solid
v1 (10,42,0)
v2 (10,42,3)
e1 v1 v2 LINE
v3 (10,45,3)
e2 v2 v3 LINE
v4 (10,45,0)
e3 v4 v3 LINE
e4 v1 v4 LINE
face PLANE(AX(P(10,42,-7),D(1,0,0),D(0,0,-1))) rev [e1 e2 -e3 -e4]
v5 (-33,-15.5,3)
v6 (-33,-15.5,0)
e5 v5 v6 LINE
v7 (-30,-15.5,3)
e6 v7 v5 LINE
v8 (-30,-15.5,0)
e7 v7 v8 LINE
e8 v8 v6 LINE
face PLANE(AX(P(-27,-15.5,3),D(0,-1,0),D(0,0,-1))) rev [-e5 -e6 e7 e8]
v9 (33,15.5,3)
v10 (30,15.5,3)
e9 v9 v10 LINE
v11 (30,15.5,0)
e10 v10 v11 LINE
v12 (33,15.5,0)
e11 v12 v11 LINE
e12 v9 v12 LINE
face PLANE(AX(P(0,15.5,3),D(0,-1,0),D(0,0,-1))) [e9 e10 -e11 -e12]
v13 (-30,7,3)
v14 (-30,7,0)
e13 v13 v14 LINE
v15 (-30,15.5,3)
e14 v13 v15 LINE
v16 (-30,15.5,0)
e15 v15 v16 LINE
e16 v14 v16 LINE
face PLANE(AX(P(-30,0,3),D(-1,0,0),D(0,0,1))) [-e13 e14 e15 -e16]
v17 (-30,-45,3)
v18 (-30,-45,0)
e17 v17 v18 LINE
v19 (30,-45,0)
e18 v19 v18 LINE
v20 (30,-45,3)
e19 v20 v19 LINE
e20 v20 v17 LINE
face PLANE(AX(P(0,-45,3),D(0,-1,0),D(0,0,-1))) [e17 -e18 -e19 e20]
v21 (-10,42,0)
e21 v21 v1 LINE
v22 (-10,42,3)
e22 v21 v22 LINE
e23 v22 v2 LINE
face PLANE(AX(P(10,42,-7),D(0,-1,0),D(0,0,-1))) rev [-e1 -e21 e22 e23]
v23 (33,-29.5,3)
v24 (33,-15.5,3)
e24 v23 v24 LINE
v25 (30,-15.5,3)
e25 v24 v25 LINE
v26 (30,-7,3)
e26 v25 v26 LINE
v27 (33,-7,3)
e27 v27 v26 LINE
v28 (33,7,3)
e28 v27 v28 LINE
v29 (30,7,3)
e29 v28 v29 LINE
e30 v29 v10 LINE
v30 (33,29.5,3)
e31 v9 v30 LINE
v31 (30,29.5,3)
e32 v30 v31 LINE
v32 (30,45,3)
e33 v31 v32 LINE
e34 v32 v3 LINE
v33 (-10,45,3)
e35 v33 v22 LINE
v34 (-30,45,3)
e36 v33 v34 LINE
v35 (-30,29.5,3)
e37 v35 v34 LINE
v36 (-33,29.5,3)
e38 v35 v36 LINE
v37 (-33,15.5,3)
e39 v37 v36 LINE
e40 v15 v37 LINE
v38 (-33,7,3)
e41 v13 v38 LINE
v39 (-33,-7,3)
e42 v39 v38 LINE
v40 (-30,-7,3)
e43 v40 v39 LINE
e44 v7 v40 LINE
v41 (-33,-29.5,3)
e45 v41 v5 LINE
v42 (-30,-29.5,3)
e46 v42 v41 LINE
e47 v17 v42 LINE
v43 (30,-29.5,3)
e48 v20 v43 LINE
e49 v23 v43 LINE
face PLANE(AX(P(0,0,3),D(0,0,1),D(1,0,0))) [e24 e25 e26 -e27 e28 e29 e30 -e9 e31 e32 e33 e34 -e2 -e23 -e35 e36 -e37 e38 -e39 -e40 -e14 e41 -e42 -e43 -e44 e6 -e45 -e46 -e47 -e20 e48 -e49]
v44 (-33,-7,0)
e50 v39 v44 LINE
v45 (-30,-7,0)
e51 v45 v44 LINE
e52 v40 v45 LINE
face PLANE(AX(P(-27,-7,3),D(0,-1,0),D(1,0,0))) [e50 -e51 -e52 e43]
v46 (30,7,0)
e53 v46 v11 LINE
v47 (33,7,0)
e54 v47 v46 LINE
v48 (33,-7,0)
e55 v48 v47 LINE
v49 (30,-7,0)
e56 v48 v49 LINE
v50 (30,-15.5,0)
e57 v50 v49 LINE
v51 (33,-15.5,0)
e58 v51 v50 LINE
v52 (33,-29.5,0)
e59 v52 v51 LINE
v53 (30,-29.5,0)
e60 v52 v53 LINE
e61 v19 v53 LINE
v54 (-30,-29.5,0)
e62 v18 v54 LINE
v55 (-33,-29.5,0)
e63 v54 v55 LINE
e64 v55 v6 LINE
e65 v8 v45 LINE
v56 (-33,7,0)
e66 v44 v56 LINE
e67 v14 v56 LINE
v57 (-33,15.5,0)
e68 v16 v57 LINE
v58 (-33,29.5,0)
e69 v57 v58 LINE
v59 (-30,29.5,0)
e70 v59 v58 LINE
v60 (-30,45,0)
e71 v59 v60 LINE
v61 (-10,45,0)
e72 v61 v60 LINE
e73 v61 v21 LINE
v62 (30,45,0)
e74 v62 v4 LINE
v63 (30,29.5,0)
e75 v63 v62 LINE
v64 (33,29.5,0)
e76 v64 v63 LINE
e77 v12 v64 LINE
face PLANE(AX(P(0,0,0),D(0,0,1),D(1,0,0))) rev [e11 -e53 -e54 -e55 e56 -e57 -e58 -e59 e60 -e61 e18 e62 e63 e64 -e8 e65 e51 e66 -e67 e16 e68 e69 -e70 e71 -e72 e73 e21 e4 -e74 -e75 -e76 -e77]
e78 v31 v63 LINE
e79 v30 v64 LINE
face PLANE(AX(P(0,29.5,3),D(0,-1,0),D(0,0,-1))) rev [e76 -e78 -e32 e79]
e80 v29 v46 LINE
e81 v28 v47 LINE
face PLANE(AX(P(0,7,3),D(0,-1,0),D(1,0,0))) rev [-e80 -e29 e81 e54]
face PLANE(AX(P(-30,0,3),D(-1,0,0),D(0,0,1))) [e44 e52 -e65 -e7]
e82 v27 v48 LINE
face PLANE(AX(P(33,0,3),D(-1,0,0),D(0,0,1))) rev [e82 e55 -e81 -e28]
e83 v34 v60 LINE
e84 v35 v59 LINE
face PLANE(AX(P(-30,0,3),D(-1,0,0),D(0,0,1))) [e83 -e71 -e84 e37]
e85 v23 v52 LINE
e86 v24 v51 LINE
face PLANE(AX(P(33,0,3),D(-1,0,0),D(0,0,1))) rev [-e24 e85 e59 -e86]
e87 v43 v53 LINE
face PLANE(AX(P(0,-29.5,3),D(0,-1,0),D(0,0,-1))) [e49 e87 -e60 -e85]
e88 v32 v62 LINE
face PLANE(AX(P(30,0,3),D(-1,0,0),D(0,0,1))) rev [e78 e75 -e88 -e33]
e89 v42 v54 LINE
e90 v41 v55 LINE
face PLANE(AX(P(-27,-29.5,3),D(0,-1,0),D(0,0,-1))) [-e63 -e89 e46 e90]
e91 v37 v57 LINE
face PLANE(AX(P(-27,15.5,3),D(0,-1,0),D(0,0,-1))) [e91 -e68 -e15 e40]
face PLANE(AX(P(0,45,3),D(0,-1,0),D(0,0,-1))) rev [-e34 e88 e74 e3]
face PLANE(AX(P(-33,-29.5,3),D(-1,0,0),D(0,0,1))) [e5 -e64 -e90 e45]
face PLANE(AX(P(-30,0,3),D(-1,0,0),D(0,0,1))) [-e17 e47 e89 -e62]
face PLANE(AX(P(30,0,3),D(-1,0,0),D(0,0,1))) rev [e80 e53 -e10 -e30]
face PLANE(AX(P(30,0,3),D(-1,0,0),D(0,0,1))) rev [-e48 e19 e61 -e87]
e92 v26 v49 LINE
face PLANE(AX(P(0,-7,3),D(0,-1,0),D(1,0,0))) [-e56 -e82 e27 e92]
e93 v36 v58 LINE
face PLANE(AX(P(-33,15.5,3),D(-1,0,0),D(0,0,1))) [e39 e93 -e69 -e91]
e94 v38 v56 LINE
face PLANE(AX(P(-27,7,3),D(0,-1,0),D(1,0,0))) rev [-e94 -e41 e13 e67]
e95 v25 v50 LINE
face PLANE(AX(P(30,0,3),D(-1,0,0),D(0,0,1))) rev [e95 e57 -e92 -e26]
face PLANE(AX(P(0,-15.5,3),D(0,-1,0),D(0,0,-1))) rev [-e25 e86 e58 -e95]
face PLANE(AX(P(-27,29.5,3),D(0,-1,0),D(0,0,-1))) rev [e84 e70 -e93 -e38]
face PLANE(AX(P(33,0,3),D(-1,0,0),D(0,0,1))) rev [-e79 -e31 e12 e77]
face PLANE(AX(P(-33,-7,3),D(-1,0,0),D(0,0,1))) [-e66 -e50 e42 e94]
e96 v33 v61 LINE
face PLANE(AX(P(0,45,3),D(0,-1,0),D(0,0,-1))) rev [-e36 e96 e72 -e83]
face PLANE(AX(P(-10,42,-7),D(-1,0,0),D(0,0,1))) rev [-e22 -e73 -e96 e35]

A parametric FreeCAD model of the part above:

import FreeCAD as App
import Part
import Sketcher
from FreeCAD import Vector
Q = App.Units.Quantity


def add_polygon(sketch, points):
    """Adds a closed chain of lines whose ends are joined by coincident constraints."""
    first, n = sketch.GeometryCount, len(points)
    for a, b in zip(points, points[1:] + points[:1]):
        sketch.addGeometry(Part.LineSegment(App.Vector(*a, 0), App.Vector(*b, 0)), False)
    for i in range(n):
        sketch.addConstraint(Sketcher.Constraint("Coincident", first + i, 2, first + (i + 1) % n, 1))

doc = App.newDocument("Part")
body = doc.addObject("PartDesign::Body", "Body")

# Sketch on XY plane
sketch1 = body.newObject("Sketcher::SketchObject", "Sketch")
sketch1.AttachmentSupport = (doc.getObject("XY_Plane"), [""])
sketch1.MapMode = "FlatFace"
add_polygon(sketch1, [(-30, -45), (30, -45), (30, -29.5), (33, -29.5), (33, -15.5), (30, -15.5), (30, -7), (33, -7), (33, 7), (30, 7), (30, 15.5), (33, 15.5), (33, 29.5), (30, 29.5), (30, 45), (-30, 45), (-30, 29.5), (-33, 29.5), (-33, 15.5), (-30, 15.5), (-30, 7), (-33, 7), (-33, -7), (-30, -7), (-30, -15.5), (-33, -15.5), (-33, -29.5), (-30, -29.5)])  # lines 0-27
sketch1.addConstraint([
    Sketcher.Constraint("Horizontal", 0),
    Sketcher.Constraint("Vertical", 1),
    Sketcher.Constraint("Horizontal", 2),
    Sketcher.Constraint("Vertical", 3),
    Sketcher.Constraint("Horizontal", 4),
    Sketcher.Constraint("Vertical", 5),
    Sketcher.Constraint("Horizontal", 6),
    Sketcher.Constraint("Vertical", 7),
    Sketcher.Constraint("Horizontal", 8),
    Sketcher.Constraint("Vertical", 9),
    Sketcher.Constraint("Horizontal", 10),
    Sketcher.Constraint("Vertical", 11),
    Sketcher.Constraint("Horizontal", 12),
    Sketcher.Constraint("Vertical", 13),
    Sketcher.Constraint("Horizontal", 14),
    Sketcher.Constraint("Vertical", 15),
    Sketcher.Constraint("Horizontal", 16),
    Sketcher.Constraint("Vertical", 17),
    Sketcher.Constraint("Horizontal", 18),
    Sketcher.Constraint("Vertical", 19),
    Sketcher.Constraint("Horizontal", 20),
    Sketcher.Constraint("Vertical", 21),
    Sketcher.Constraint("Horizontal", 22),
    Sketcher.Constraint("Vertical", 23),
    Sketcher.Constraint("Horizontal", 24),
    Sketcher.Constraint("Vertical", 25),
    Sketcher.Constraint("Horizontal", 26),
    Sketcher.Constraint("Vertical", 27),
    Sketcher.Constraint("Symmetric", 0, 2, 14, 2, -1, 1),
    Sketcher.Constraint("Symmetric", 2, 2, 16, 2, -1, 1),
    Sketcher.Constraint("Symmetric", 4, 2, 18, 2, -1, 1),
    Sketcher.Constraint("Symmetric", 6, 2, 20, 2, -1, 1),
    Sketcher.Constraint("Symmetric", 8, 2, 22, 2, -1, 1),
    Sketcher.Constraint("Symmetric", 10, 2, 24, 2, -1, 1),
    Sketcher.Constraint("Symmetric", 12, 2, 26, 2, -1, 1),
    Sketcher.Constraint("Symmetric", 12, 2, 15, 2, -2),
    Sketcher.Constraint("Symmetric", 10, 2, 17, 2, -2),
    Sketcher.Constraint("Symmetric", 8, 2, 19, 2, -2),
    Sketcher.Constraint("Vertical", 1, 2, 4, 2),
    Sketcher.Constraint("Vertical", 3, 2, 6, 2),
    Sketcher.Constraint("Equal", 3, 7),
    Sketcher.Constraint("DistanceX", 0, 1, 0, 2, Q("60 mm")),
    Sketcher.Constraint("DistanceX", 2, 1, 2, 2, Q("3 mm")),
    Sketcher.Constraint("DistanceY", 3, 1, 3, 2, Q("14 mm")),
    Sketcher.Constraint("DistanceY", 1, 1, 1, 2, Q("15.5 mm")),
    Sketcher.Constraint("DistanceY", 5, 1, 5, 2, Q("8.5 mm")),
])
pad1 = body.newObject("PartDesign::Pad", "Pad")
pad1.Profile = sketch1
pad1.Length = 3

# Sketch on XY plane
sketch2 = body.newObject("Sketcher::SketchObject", "Sketch001")
sketch2.AttachmentSupport = (doc.getObject("XY_Plane"), [""])
sketch2.MapMode = "FlatFace"
sketch2.AttachmentOffset = App.Placement(Vector(0, 0, 3), App.Rotation())
add_polygon(sketch2, [(-10, 48), (-10, 42), (10, 42), (10, 48)])  # lines 0-3
sketch2.addConstraint([
    Sketcher.Constraint("Vertical", 0),
    Sketcher.Constraint("Horizontal", 1),
    Sketcher.Constraint("Vertical", 2),
    Sketcher.Constraint("Horizontal", 3),
    Sketcher.Constraint("DistanceX", 1, 1, 1, 2, Q("20 mm")),
    Sketcher.Constraint("DistanceY", 0, 2, 0, 1, Q("6 mm")),
    Sketcher.Constraint("DistanceX", 0, 2, -1, 1, Q("10 mm")),
    Sketcher.Constraint("DistanceY", -1, 1, 0, 2, Q("42 mm")),
])
pocket1 = body.newObject("PartDesign::Pocket", "Pocket")
pocket1.Profile = sketch2
pocket1.Length = 10

doc.recompute()
